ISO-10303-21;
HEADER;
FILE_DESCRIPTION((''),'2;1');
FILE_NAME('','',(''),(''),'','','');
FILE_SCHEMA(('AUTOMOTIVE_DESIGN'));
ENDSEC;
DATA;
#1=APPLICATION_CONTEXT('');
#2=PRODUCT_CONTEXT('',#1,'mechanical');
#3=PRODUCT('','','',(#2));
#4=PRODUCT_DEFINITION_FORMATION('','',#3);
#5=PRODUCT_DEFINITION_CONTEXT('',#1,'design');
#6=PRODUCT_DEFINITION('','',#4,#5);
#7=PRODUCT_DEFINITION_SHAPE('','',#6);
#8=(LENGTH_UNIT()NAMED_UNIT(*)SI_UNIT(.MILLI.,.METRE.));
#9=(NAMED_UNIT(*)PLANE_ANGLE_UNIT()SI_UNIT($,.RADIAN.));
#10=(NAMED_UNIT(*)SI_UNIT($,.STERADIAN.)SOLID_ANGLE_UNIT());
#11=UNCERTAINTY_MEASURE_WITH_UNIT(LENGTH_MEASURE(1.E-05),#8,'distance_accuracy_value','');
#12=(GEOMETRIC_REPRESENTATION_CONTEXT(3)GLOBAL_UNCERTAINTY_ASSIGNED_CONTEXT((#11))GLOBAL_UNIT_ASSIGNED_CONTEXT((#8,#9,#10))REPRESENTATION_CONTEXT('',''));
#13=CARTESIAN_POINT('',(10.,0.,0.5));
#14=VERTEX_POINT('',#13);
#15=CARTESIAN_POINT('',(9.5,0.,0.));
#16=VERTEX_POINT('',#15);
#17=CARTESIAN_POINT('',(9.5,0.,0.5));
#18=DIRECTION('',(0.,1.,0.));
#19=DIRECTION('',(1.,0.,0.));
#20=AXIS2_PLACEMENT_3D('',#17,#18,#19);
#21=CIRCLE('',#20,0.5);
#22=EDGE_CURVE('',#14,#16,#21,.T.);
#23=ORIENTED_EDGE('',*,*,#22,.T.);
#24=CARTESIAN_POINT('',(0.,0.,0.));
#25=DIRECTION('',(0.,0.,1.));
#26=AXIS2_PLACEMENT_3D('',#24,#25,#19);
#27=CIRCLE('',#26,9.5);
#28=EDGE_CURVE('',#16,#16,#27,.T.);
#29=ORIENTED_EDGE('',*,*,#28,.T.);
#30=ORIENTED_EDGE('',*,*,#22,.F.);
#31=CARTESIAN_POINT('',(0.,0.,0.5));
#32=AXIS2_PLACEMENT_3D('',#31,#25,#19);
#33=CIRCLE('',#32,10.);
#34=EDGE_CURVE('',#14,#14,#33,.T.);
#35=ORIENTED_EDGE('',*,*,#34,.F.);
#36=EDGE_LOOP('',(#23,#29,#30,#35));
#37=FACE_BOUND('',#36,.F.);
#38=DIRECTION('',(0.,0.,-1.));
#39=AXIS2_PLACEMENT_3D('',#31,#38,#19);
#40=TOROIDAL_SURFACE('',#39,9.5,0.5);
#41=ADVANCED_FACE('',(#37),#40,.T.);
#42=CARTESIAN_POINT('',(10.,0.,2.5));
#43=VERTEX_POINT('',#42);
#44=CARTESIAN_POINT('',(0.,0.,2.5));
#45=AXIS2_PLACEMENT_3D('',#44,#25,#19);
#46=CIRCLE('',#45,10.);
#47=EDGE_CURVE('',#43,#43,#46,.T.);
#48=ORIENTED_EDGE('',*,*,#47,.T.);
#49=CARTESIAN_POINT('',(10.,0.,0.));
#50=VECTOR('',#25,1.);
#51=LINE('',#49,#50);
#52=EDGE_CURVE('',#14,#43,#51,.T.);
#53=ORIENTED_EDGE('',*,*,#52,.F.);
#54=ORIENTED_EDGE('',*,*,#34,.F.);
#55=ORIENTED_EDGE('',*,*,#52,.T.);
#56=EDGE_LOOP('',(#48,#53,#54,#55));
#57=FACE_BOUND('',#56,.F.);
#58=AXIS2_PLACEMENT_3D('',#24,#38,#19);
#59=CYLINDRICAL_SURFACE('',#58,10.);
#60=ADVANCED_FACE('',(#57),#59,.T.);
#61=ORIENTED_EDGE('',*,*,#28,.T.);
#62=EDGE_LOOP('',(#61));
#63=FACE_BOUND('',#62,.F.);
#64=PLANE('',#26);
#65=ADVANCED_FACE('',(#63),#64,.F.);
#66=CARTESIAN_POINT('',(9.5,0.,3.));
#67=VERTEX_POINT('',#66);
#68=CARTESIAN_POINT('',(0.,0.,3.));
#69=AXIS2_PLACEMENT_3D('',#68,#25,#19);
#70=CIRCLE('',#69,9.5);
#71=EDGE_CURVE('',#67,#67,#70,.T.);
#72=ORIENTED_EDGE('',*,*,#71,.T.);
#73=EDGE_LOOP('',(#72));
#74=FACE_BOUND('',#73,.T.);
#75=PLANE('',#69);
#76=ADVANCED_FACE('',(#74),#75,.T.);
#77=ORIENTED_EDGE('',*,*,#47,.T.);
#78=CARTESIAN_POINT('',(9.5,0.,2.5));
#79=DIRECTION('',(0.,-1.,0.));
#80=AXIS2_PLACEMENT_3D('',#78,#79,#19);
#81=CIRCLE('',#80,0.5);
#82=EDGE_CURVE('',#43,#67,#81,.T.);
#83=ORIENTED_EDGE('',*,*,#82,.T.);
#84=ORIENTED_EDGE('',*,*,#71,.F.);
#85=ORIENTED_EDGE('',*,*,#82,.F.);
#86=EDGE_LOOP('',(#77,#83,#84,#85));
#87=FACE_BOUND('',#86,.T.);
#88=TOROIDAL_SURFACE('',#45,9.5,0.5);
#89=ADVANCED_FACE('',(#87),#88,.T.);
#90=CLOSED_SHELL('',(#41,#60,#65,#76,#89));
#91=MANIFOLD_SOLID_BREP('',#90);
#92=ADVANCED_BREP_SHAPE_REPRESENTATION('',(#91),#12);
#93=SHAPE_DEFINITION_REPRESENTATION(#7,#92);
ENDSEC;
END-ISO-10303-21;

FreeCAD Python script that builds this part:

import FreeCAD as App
import Part
import Sketcher
from FreeCAD import Vector


def edges_at(feature, points):
    """Names of the edges that pass closest to the given points."""
    edges = feature.Shape.Edges
    near = lambda p: min(range(len(edges)), key=lambda i: edges[i].distToShape(Part.Vertex(*p))[0])
    return sorted({f"Edge{near(p) + 1}" for p in points})

doc = App.newDocument("Part")
params = doc.addObject("Spreadsheet::Sheet", "Params")
for row, (alias, value) in enumerate([
    ("sketch1_diameter", "20 mm"),
    ("pad1_length", "3 mm"),
    ("fillet_radius", "0.5 mm"),
    ("fillet2_radius", "0.5 mm"),
], start=1):
    params.set(f"A{row}", alias)
    params.set(f"B{row}", "=" + value)
    params.setAlias(f"B{row}", alias)

body = doc.addObject("PartDesign::Body", "Body")

# Sketch on XY plane
sketch1 = body.newObject("Sketcher::SketchObject", "Sketch")
sketch1.AttachmentSupport = (doc.getObject("XY_Plane"), [""])
sketch1.MapMode = "FlatFace"
sketch1.addGeometry(Part.Circle(Vector(0, 0, 0), Vector(0, 0, 1), 10), False)
sketch1.addConstraint([
    Sketcher.Constraint("Coincident", 0, 3, -1, 1),
    Sketcher.Constraint("Diameter", 0, 20.0),
])
sketch1.setExpression("Constraints[1]", "Params.sketch1_diameter")
pad1 = body.newObject("PartDesign::Pad", "Pad")
pad1.Profile = sketch1
pad1.setExpression("Length", "Params.pad1_length")
doc.recompute()

fillet = body.newObject("PartDesign::Fillet", "Fillet")
fillet.Base = (pad1, edges_at(pad1, [(-10, 0, 3)]))
fillet.setExpression("Radius", "Params.fillet_radius")
doc.recompute()

fillet2 = body.newObject("PartDesign::Fillet", "Fillet001")
fillet2.Base = (fillet, edges_at(fillet, [(-10, 0, 0)]))
fillet2.setExpression("Radius", "Params.fillet2_radius")

doc.recompute()
